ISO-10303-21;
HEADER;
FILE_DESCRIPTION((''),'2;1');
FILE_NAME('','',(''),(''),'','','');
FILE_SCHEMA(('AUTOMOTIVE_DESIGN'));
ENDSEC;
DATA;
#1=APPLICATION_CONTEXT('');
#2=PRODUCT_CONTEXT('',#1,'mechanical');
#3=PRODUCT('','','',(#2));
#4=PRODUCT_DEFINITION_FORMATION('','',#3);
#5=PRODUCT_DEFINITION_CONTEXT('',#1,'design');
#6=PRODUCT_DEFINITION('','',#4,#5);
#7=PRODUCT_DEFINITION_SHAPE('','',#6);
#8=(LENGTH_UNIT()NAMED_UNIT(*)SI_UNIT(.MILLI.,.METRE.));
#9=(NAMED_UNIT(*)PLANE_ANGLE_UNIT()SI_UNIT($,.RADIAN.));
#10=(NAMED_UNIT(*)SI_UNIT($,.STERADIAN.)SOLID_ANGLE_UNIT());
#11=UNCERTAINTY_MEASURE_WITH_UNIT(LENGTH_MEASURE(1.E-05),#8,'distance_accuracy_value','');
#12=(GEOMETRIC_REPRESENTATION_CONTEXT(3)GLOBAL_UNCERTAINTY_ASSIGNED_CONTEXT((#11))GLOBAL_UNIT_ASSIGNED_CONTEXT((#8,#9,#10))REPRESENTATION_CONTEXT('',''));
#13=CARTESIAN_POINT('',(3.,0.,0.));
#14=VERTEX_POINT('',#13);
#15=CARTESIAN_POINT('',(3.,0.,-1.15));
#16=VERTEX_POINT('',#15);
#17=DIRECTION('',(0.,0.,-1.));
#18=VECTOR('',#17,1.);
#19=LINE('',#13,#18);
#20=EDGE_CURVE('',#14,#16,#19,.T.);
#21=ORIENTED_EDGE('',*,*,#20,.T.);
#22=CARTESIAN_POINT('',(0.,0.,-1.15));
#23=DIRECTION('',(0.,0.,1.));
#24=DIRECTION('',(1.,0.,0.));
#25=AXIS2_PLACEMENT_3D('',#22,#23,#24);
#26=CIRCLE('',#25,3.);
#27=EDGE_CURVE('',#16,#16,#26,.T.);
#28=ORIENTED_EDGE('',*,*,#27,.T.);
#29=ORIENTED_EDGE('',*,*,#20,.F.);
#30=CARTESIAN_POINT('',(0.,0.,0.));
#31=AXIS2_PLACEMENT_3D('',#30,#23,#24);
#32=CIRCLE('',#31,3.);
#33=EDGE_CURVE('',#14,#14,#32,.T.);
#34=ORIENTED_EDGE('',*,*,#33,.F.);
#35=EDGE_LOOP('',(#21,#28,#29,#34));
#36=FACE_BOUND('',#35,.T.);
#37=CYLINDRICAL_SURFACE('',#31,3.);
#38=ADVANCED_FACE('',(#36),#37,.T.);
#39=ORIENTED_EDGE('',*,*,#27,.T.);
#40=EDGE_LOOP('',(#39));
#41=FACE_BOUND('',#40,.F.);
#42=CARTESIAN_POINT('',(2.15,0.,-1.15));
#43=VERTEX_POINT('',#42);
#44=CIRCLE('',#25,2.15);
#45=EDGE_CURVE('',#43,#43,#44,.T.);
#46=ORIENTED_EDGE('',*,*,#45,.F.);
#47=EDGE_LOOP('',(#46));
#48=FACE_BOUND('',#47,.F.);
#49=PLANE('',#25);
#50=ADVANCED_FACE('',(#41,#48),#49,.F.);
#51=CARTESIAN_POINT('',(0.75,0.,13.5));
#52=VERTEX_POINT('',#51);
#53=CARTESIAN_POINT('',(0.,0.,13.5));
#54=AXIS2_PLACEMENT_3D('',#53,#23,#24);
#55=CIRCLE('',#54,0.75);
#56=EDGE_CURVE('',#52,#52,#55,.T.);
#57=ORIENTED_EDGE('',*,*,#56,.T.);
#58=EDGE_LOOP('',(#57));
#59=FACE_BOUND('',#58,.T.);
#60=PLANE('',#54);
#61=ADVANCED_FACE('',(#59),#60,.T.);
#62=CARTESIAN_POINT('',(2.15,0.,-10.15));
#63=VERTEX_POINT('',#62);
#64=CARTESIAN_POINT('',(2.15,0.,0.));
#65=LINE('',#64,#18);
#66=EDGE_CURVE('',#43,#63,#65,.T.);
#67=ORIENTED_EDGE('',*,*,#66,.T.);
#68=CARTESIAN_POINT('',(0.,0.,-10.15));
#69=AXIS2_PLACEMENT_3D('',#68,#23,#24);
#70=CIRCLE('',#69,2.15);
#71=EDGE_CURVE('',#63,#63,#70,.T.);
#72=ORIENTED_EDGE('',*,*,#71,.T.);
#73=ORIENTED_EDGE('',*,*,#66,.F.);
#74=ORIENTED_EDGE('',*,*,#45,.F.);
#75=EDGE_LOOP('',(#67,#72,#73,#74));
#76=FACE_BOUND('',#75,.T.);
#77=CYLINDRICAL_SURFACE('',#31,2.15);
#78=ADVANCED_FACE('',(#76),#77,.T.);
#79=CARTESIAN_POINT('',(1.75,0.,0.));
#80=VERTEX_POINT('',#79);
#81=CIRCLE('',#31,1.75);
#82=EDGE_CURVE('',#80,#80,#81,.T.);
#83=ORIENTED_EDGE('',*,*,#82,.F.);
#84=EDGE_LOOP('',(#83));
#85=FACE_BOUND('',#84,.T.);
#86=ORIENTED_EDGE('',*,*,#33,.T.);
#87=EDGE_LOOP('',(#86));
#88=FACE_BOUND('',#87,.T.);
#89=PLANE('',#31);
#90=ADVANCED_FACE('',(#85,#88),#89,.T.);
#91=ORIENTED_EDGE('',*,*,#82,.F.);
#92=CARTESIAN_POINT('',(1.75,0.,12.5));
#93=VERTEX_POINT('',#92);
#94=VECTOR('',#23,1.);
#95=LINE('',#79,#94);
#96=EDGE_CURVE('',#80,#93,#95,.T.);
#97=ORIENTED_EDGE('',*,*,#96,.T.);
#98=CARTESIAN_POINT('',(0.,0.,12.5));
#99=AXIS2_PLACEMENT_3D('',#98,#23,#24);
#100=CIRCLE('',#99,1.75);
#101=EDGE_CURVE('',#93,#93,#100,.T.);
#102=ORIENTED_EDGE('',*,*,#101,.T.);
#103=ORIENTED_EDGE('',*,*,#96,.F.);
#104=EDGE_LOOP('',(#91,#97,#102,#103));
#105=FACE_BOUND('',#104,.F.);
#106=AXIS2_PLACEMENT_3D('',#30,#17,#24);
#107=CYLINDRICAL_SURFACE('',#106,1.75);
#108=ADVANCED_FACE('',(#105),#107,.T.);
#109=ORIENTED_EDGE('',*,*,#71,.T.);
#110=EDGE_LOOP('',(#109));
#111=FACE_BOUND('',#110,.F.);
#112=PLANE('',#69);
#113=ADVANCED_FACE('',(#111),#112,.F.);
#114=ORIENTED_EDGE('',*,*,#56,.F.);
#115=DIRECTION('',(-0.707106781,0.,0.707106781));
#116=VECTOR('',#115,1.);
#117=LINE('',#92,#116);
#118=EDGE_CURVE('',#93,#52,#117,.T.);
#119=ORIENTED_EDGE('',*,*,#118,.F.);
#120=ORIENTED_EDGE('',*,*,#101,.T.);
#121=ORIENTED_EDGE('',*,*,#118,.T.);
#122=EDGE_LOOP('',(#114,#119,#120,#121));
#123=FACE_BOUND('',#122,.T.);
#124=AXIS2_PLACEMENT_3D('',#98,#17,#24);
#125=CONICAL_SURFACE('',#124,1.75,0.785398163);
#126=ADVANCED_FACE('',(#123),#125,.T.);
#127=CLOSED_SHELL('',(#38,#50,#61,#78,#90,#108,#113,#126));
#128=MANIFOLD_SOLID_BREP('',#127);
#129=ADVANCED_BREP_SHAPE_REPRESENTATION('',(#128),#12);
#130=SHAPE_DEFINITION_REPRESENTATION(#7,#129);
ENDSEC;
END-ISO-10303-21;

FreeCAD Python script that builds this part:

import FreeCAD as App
import Part
import Sketcher


def edges_at(feature, points):
    """Names of the edges that pass closest to the given points."""
    edges = feature.Shape.Edges
    near = lambda p: min(range(len(edges)), key=lambda i: edges[i].distToShape(Part.Vertex(*p))[0])
    return sorted({f"Edge{near(p) + 1}" for p in points})

doc = App.newDocument("Part")
body = doc.addObject("PartDesign::Body", "Body")

# Sketch on XY plane
sketch1 = body.newObject("Sketcher::SketchObject", "Sketch")
sketch1.AttachmentSupport = (doc.getObject("XY_Plane"), [""])
sketch1.MapMode = "FlatFace"
sketch1.addGeometry(Part.Circle(App.Vector(0, 0, 0), App.Vector(0, 0, 1), 1.8), False)
sketch1.addConstraint([
    Sketcher.Constraint("Coincident", 0, 3, -1, 1),
    Sketcher.Constraint("Diameter", 0, 3.5),
])
pad1 = body.newObject("PartDesign::Pad", "Pad")
pad1.Profile = sketch1
pad1.Length = 13.5

# Sketch on XY plane
sketch2 = body.newObject("Sketcher::SketchObject", "Sketch001")
sketch2.AttachmentSupport = (doc.getObject("XY_Plane"), [""])
sketch2.MapMode = "FlatFace"
sketch2.addGeometry(Part.Circle(App.Vector(0, 0, 0), App.Vector(0, 0, 1), 3), False)
sketch2.addConstraint([
    Sketcher.Constraint("Coincident", 0, 3, -1, 1),
    Sketcher.Constraint("Diameter", 0, 6.0),
])
pad2 = body.newObject("PartDesign::Pad", "Pad001")
pad2.Profile = sketch2
pad2.Length = 1.15
pad2.Reversed = True

# Sketch on XY plane
sketch3 = body.newObject("Sketcher::SketchObject", "Sketch002")
sketch3.AttachmentSupport = (doc.getObject("XY_Plane"), [""])
sketch3.MapMode = "FlatFace"
sketch3.addGeometry(Part.Circle(App.Vector(0, 0, 0), App.Vector(0, 0, 1), 2.1), False)
sketch3.addConstraint([
    Sketcher.Constraint("Coincident", 0, 3, -1, 1),
    Sketcher.Constraint("Diameter", 0, 4.3),
])
pad3 = body.newObject("PartDesign::Pad", "Pad002")
pad3.Profile = sketch3
pad3.Length = 10.15
pad3.Reversed = True
doc.recompute()

chamfer = body.newObject("PartDesign::Chamfer", "Chamfer")
chamfer.Base = (pad3, edges_at(pad3, [(-1.75, 0, 13.5)]))
chamfer.Size = 1

doc.recompute()
